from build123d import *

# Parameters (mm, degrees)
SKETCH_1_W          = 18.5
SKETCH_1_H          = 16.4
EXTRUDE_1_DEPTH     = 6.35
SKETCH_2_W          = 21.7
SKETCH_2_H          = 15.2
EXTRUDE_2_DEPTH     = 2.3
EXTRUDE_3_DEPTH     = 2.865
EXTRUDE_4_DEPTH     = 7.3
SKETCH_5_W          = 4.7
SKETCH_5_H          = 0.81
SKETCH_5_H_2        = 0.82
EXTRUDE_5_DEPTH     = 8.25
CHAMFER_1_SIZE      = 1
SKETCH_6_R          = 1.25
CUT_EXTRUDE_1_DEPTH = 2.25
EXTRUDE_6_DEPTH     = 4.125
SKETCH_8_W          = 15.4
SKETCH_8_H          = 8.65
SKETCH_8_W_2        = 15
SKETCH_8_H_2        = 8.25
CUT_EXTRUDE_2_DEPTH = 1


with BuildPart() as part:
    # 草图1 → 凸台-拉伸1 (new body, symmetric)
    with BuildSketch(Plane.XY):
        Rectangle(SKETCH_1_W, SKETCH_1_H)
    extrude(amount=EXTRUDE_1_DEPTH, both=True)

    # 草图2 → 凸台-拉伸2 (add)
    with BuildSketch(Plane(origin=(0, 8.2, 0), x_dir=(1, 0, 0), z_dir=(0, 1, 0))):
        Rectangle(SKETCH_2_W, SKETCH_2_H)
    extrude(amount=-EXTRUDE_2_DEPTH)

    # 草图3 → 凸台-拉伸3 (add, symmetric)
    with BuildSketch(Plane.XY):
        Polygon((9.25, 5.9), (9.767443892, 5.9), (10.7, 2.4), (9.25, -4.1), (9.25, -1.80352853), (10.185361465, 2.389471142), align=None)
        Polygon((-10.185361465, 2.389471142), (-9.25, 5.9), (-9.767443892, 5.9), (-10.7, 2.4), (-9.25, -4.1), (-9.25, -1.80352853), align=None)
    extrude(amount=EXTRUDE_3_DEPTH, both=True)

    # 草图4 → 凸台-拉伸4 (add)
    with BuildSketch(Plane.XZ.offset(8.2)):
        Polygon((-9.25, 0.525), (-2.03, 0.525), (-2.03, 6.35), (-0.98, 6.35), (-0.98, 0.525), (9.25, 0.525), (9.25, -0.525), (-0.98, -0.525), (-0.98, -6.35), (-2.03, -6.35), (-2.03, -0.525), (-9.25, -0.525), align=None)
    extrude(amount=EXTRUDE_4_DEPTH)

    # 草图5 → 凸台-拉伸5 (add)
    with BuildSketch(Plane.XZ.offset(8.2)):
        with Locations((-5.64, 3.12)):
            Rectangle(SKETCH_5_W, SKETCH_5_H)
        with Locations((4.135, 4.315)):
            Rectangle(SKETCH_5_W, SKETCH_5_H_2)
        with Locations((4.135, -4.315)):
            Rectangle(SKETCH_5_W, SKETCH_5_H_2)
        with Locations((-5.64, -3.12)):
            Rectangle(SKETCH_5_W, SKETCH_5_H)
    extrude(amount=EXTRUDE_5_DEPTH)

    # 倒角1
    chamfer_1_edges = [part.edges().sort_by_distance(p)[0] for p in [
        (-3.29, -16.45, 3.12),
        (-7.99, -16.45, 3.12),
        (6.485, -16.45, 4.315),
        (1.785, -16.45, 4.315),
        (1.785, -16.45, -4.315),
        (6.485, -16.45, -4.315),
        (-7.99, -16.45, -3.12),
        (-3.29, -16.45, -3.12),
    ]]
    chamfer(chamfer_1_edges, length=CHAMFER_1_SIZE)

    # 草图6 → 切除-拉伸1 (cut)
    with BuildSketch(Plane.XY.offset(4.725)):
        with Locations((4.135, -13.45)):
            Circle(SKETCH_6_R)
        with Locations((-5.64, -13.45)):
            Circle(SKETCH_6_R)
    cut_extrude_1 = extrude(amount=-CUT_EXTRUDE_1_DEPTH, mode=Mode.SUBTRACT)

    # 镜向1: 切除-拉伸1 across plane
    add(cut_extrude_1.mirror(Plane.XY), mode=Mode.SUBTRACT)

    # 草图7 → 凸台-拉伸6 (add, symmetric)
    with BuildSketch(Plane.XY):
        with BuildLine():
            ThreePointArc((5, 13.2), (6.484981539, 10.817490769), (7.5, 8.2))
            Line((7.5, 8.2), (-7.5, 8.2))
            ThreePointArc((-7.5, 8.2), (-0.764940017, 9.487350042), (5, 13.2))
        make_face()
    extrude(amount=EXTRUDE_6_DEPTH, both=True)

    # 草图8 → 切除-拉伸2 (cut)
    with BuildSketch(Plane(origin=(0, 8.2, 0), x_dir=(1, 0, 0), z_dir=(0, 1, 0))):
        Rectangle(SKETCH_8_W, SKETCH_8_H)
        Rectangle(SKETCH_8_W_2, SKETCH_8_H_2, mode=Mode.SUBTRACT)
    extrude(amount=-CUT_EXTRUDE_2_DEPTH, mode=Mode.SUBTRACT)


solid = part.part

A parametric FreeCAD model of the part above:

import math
import FreeCAD as App
import Part
import Sketcher

V = App.Vector


def edges_at(feature, points):
    """Names of the edges that pass closest to the given points."""
    edges = feature.Shape.Edges
    near = lambda p: min(range(len(edges)), key=lambda i: edges[i].distToShape(Part.Vertex(*p))[0])
    return sorted({f"Edge{near(p) + 1}" for p in points})


def add_polygon(sketch, points):
    """Adds a closed chain of lines whose ends are joined by coincident constraints."""
    first, n = sketch.GeometryCount, len(points)
    for a, b in zip(points, points[1:] + points[:1]):
        sketch.addGeometry(Part.LineSegment(App.Vector(*a, 0), App.Vector(*b, 0)), False)
    for i in range(n):
        sketch.addConstraint(Sketcher.Constraint("Coincident", first + i, 2, first + (i + 1) % n, 1))

doc = App.newDocument("Part")
body = doc.addObject("PartDesign::Body", "Body")

# Sketch on XY plane
sketch1 = body.newObject("Sketcher::SketchObject", "Sketch")
sketch1.AttachmentSupport = (doc.getObject("XY_Plane"), [""])
sketch1.MapMode = "FlatFace"
add_polygon(sketch1, [(-9, 8), (-9, -8), (9, -8), (9, 8)])  # lines 0-3
sketch1.addConstraint([
    Sketcher.Constraint("Vertical", 0),
    Sketcher.Constraint("Horizontal", 1),
    Sketcher.Constraint("Vertical", 2),
    Sketcher.Constraint("Horizontal", 3),
    Sketcher.Constraint("Symmetric", 0, 2, 2, 2, -1, 1),
    Sketcher.Constraint("DistanceX", 1, 1, 1, 2, 18.5),
    Sketcher.Constraint("DistanceY", 0, 2, 0, 1, 16.4),
])
pad1 = body.newObject("PartDesign::Pad", "Pad")
pad1.Profile = sketch1
pad1.Length = 12.7
pad1.Midplane = True

# Sketch on XZ plane
sketch2 = body.newObject("Sketcher::SketchObject", "Sketch001")
sketch2.AttachmentSupport = (doc.getObject("XZ_Plane"), [""])
sketch2.MapMode = "FlatFace"
sketch2.AttachmentOffset = App.Placement(V(0, 0, -8.2), App.Rotation())
add_polygon(sketch2, [(-11, -8), (-11, 8), (11, 8), (11, -8)])  # lines 0-3
sketch2.addConstraint([
    Sketcher.Constraint("Vertical", 0),
    Sketcher.Constraint("Horizontal", 1),
    Sketcher.Constraint("Vertical", 2),
    Sketcher.Constraint("Horizontal", 3),
    Sketcher.Constraint("Symmetric", 0, 2, 2, 2, -1, 1),
    Sketcher.Constraint("DistanceX", 1, 1, 1, 2, 21.7),
    Sketcher.Constraint("DistanceY", 0, 1, 0, 2, 15.2),
])
pad2 = body.newObject("PartDesign::Pad", "Pad001")
pad2.Profile = sketch2
pad2.Length = 2.3

# Sketch on XY plane
sketch3 = body.newObject("Sketcher::SketchObject", "Sketch002")
sketch3.AttachmentSupport = (doc.getObject("XY_Plane"), [""])
sketch3.MapMode = "FlatFace"
add_polygon(sketch3, [(9.8, 5.9), (9.2, 5.9), (10.2, 2.4), (9.2, -1.8), (9.2, -4.1), (10.7, 2.4)])  # lines 0-5
add_polygon(sketch3, [(-10.2, 2.4), (-9.2, 5.9), (-9.8, 5.9), (-10.7, 2.4), (-9.2, -4.1), (-9.2, -1.8)])  # lines 6-11
sketch3.addConstraint([
    Sketcher.Constraint("Horizontal", 0),
    Sketcher.Constraint("Vertical", 3),
    Sketcher.Constraint("Horizontal", 7),
    Sketcher.Constraint("Vertical", 10),
    Sketcher.Constraint("Symmetric", 0, 2, 6, 2, -2),
    Sketcher.Constraint("Symmetric", 4, 2, 8, 2, -2),
    Sketcher.Constraint("Symmetric", 3, 2, 9, 2, -2),
    Sketcher.Constraint("Symmetric", 1, 2, 11, 2, -2),
    Sketcher.Constraint("Parallel", 2, 4),
    Sketcher.Constraint("Parallel", 1, 5),
    Sketcher.Constraint("Parallel", 6, 8),
    Sketcher.Constraint("Parallel", 9, 11),
    Sketcher.Constraint("Vertical", 0, 2, 2, 2),
    Sketcher.Constraint("DistanceY", 3, 2, 0, 2, 10.0),
    Sketcher.Constraint("DistanceY", -1, 1, 0, 2, 5.9),
    Sketcher.Constraint("DistanceX", -1, 1, 4, 2, 10.7),
    Sketcher.Constraint("DistanceY", -1, 1, 4, 2, 2.4),
    Sketcher.Constraint("DistanceX", 6, 2, 0, 2, 18.5),
    Sketcher.Constraint("DistanceY", 2, 2, 1, 2, 4.193),
    Sketcher.Constraint("DistanceY", 3, 2, 3, 1, 2.296471),
])
pad3 = body.newObject("PartDesign::Pad", "Pad002")
pad3.Profile = sketch3
pad3.Length = 5.73
pad3.Midplane = True

# Sketch on XZ plane
sketch4 = body.newObject("Sketcher::SketchObject", "Sketch003")
sketch4.AttachmentSupport = (doc.getObject("XZ_Plane"), [""])
sketch4.MapMode = "FlatFace"
sketch4.AttachmentOffset = App.Placement(V(0, 0, 8.2), App.Rotation())
add_polygon(sketch4, [(-2, 0.5), (-9.2, 0.5), (-9.2, -0.5), (-2, -0.5), (-2, -6.3), (-1, -6.3), (-1, -0.5), (9.2, -0.5), (9.2, 0.5), (-1, 0.5), (-1, 6.3), (-2, 6.3)])  # lines 0-11
sketch4.addConstraint([
    Sketcher.Constraint("Horizontal", 0),
    Sketcher.Constraint("Vertical", 1),
    Sketcher.Constraint("Horizontal", 2),
    Sketcher.Constraint("Vertical", 3),
    Sketcher.Constraint("Horizontal", 4),
    Sketcher.Constraint("Vertical", 5),
    Sketcher.Constraint("Horizontal", 6),
    Sketcher.Constraint("Vertical", 7),
    Sketcher.Constraint("Horizontal", 8),
    Sketcher.Constraint("Vertical", 9),
    Sketcher.Constraint("Horizontal", 10),
    Sketcher.Constraint("Vertical", 11),
    Sketcher.Constraint("Symmetric", 0, 2, 6, 2, -1, 1),
    Sketcher.Constraint("Symmetric", 5, 2, 8, 2, -1),
    Sketcher.Constraint("Symmetric", 3, 2, 10, 2, -1),
    Sketcher.Constraint("Horizontal", 2, 2, 5, 2),
    Sketcher.Constraint("Equal", 10, 1),
    Sketcher.Constraint("DistanceX", 0, 2, 0, 1, 7.22),
    Sketcher.Constraint("DistanceX", 4, 1, 4, 2, 1.05),
    Sketcher.Constraint("DistanceX", 6, 1, 6, 2, 10.23),
    Sketcher.Constraint("DistanceY", 3, 2, 3, 1, 5.825),
])
pad4 = body.newObject("PartDesign::Pad", "Pad003")
pad4.Profile = sketch4
pad4.Length = 7.3

# Sketch on XZ plane
sketch5 = body.newObject("Sketcher::SketchObject", "Sketch004")
sketch5.AttachmentSupport = (doc.getObject("XZ_Plane"), [""])
sketch5.MapMode = "FlatFace"
sketch5.AttachmentOffset = App.Placement(V(0, 0, 8.2), App.Rotation())
add_polygon(sketch5, [(-8, 3.5), (-8, 2.7), (-3.3, 2.7), (-3.3, 3.5)])  # lines 0-3
add_polygon(sketch5, [(1.8, 4.7), (1.8, 3.9), (6.5, 3.9), (6.5, 4.7)])  # lines 4-7
add_polygon(sketch5, [(1.8, -3.9), (1.8, -4.7), (6.5, -4.7), (6.5, -3.9)])  # lines 8-11
add_polygon(sketch5, [(-8, -2.7), (-8, -3.5), (-3.3, -3.5), (-3.3, -2.7)])  # lines 12-15
sketch5.addConstraint([
    Sketcher.Constraint("Vertical", 0),
    Sketcher.Constraint("Horizontal", 1),
    Sketcher.Constraint("Vertical", 2),
    Sketcher.Constraint("Horizontal", 3),
    Sketcher.Constraint("Vertical", 4),
    Sketcher.Constraint("Horizontal", 5),
    Sketcher.Constraint("Vertical", 6),
    Sketcher.Constraint("Horizontal", 7),
    Sketcher.Constraint("Vertical", 8),
    Sketcher.Constraint("Horizontal", 9),
    Sketcher.Constraint("Vertical", 10),
    Sketcher.Constraint("Horizontal", 11),
    Sketcher.Constraint("Vertical", 12),
    Sketcher.Constraint("Horizontal", 13),
    Sketcher.Constraint("Vertical", 14),
    Sketcher.Constraint("Horizontal", 15),
    Sketcher.Constraint("Symmetric", 7, 2, 8, 2, -1),
    Sketcher.Constraint("Symmetric", 5, 2, 10, 2, -1),
    Sketcher.Constraint("Symmetric", 3, 2, 12, 2, -1),
    Sketcher.Constraint("Symmetric", 1, 2, 14, 2, -1),
    Sketcher.Constraint("Equal", 3, 5),
    Sketcher.Constraint("DistanceX", 1, 1, 1, 2, 4.7),
    Sketcher.Constraint("DistanceY", 0, 2, 0, 1, 0.81),
    Sketcher.Constraint("DistanceY", 4, 2, 4, 1, 0.82),
    Sketcher.Constraint("DistanceY", 2, 2, 6, 2, 1.2),
    Sketcher.Constraint("DistanceX", 0, 2, -1, 1, 7.99),
    Sketcher.Constraint("DistanceY", 8, 2, 4, 2, 8.63),
    Sketcher.Constraint("DistanceX", -1, 1, 4, 2, 1.785),
])
pad5 = body.newObject("PartDesign::Pad", "Pad004")
pad5.Profile = sketch5
pad5.Length = 8.25
doc.recompute()

chamfer = body.newObject("PartDesign::Chamfer", "Chamfer")
chamfer.Base = (pad5, edges_at(pad5, [
    (-3.29, -16.45, 3.12),
    (-7.99, -16.45, 3.12),
    (6.485, -16.45, 4.315),
    (1.785, -16.45, 4.315),
    (1.785, -16.45, -4.315),
    (6.485, -16.45, -4.315),
    (-7.99, -16.45, -3.12),
    (-3.29, -16.45, -3.12),
]))
chamfer.Size = 1

# Sketch on XY plane
sketch6 = body.newObject("Sketcher::SketchObject", "Sketch005")
sketch6.AttachmentSupport = (doc.getObject("XY_Plane"), [""])
sketch6.MapMode = "FlatFace"
sketch6.AttachmentOffset = App.Placement(V(0, 0, 4.725), App.Rotation())
sketch6.addGeometry([
    Part.Circle(V(4.1, -13.4, 0), V(0, 0, 1), 1.2),
    Part.Circle(V(-5.6, -13.4, 0), V(0, 0, 1), 1.2),
], False)
sketch6.addConstraint([
    Sketcher.Constraint("Equal", 0, 1),
    Sketcher.Constraint("Horizontal", 0, 3, 1, 3),
    Sketcher.Constraint("Diameter", 0, 2.5),
    Sketcher.Constraint("DistanceY", 0, 3, -1, 1, 13.45),
    Sketcher.Constraint("DistanceX", 1, 3, -1, 1, 5.64),
    Sketcher.Constraint("DistanceX", -1, 1, 0, 3, 4.135),
])
pocket1 = body.newObject("PartDesign::Pocket", "Pocket")
pocket1.Profile = sketch6
pocket1.Length = 2.25
doc.recompute()

mirrored = body.newObject("PartDesign::Mirrored", "Mirrored")
mirrored.Originals = [pocket1]
mirrored.MirrorPlane = (doc.getObject("XY_Plane"), [""])
body.Tip = mirrored

# Sketch on XY plane
sketch7 = body.newObject("Sketcher::SketchObject", "Sketch006")
sketch7.AttachmentSupport = (doc.getObject("XY_Plane"), [""])
sketch7.MapMode = "FlatFace"
sketch7.addGeometry([
    Part.ArcOfCircle(Part.Circle(V(-7, 4, 0), V(0, 0, 1), 15), math.radians(16), math.radians(37)),
    Part.ArcOfCircle(Part.Circle(V(-7, 26, 0), V(0, 0, 1), 18), math.radians(-90), math.radians(-46)),
    Part.LineSegment(V(-7, 8, 0), V(8, 8, 0)),
], False)
sketch7.addConstraint([
    Sketcher.Constraint("Coincident", 0, 2, 1, 2),
    Sketcher.Constraint("Coincident", 1, 1, 2, 1),
    Sketcher.Constraint("Coincident", 2, 2, 0, 1),
    Sketcher.Constraint("Horizontal", 2),
    Sketcher.Constraint("Radius", 0, 15.0),
    Sketcher.Constraint("Radius", 1, 18.0),
    Sketcher.Constraint("DistanceX", -1, 1, 0, 2, 5.0),
    Sketcher.Constraint("DistanceY", 1, 1, 0, 2, 5.0),
    Sketcher.Constraint("DistanceY", -1, 1, 0, 2, 13.2),
    Sketcher.Constraint("DistanceX", -1, 1, 2, 2, 7.5),
    Sketcher.Constraint("DistanceX", 2, 1, 2, 2, 14.899944),
])
pad6 = body.newObject("PartDesign::Pad", "Pad005")
pad6.Profile = sketch7
pad6.Length = 8.25
pad6.Midplane = True

# Sketch on XZ plane
sketch8 = body.newObject("Sketcher::SketchObject", "Sketch007")
sketch8.AttachmentSupport = (doc.getObject("XZ_Plane"), [""])
sketch8.MapMode = "FlatFace"
sketch8.AttachmentOffset = App.Placement(V(0, 0, -8.2), App.Rotation())
add_polygon(sketch8, [(-8, -4), (-8, 4), (8, 4), (8, -4)])  # lines 0-3
add_polygon(sketch8, [(8, 4), (-8, 4), (-8, -4), (8, -4)])  # lines 4-7
sketch8.addConstraint([
    Sketcher.Constraint("Vertical", 0),
    Sketcher.Constraint("Horizontal", 1),
    Sketcher.Constraint("Vertical", 2),
    Sketcher.Constraint("Horizontal", 3),
    Sketcher.Constraint("Horizontal", 4),
    Sketcher.Constraint("Vertical", 5),
    Sketcher.Constraint("Horizontal", 6),
    Sketcher.Constraint("Vertical", 7),
    Sketcher.Constraint("Symmetric", 0, 2, 2, 2, -1, 1),
    Sketcher.Constraint("Symmetric", 4, 2, 6, 2, -1, 1),
    Sketcher.Constraint("DistanceX", 4, 2, 4, 1, 15.0),
    Sketcher.Constraint("DistanceX", 1, 1, 1, 2, 15.4),
    Sketcher.Constraint("DistanceY", 0, 1, 0, 2, 8.65),
    Sketcher.Constraint("DistanceY", 5, 2, 5, 1, 8.25),
])
pocket2 = body.newObject("PartDesign::Pocket", "Pocket001")
pocket2.Profile = sketch8
pocket2.Length = 1
pocket2.Reversed = True

doc.recompute()
